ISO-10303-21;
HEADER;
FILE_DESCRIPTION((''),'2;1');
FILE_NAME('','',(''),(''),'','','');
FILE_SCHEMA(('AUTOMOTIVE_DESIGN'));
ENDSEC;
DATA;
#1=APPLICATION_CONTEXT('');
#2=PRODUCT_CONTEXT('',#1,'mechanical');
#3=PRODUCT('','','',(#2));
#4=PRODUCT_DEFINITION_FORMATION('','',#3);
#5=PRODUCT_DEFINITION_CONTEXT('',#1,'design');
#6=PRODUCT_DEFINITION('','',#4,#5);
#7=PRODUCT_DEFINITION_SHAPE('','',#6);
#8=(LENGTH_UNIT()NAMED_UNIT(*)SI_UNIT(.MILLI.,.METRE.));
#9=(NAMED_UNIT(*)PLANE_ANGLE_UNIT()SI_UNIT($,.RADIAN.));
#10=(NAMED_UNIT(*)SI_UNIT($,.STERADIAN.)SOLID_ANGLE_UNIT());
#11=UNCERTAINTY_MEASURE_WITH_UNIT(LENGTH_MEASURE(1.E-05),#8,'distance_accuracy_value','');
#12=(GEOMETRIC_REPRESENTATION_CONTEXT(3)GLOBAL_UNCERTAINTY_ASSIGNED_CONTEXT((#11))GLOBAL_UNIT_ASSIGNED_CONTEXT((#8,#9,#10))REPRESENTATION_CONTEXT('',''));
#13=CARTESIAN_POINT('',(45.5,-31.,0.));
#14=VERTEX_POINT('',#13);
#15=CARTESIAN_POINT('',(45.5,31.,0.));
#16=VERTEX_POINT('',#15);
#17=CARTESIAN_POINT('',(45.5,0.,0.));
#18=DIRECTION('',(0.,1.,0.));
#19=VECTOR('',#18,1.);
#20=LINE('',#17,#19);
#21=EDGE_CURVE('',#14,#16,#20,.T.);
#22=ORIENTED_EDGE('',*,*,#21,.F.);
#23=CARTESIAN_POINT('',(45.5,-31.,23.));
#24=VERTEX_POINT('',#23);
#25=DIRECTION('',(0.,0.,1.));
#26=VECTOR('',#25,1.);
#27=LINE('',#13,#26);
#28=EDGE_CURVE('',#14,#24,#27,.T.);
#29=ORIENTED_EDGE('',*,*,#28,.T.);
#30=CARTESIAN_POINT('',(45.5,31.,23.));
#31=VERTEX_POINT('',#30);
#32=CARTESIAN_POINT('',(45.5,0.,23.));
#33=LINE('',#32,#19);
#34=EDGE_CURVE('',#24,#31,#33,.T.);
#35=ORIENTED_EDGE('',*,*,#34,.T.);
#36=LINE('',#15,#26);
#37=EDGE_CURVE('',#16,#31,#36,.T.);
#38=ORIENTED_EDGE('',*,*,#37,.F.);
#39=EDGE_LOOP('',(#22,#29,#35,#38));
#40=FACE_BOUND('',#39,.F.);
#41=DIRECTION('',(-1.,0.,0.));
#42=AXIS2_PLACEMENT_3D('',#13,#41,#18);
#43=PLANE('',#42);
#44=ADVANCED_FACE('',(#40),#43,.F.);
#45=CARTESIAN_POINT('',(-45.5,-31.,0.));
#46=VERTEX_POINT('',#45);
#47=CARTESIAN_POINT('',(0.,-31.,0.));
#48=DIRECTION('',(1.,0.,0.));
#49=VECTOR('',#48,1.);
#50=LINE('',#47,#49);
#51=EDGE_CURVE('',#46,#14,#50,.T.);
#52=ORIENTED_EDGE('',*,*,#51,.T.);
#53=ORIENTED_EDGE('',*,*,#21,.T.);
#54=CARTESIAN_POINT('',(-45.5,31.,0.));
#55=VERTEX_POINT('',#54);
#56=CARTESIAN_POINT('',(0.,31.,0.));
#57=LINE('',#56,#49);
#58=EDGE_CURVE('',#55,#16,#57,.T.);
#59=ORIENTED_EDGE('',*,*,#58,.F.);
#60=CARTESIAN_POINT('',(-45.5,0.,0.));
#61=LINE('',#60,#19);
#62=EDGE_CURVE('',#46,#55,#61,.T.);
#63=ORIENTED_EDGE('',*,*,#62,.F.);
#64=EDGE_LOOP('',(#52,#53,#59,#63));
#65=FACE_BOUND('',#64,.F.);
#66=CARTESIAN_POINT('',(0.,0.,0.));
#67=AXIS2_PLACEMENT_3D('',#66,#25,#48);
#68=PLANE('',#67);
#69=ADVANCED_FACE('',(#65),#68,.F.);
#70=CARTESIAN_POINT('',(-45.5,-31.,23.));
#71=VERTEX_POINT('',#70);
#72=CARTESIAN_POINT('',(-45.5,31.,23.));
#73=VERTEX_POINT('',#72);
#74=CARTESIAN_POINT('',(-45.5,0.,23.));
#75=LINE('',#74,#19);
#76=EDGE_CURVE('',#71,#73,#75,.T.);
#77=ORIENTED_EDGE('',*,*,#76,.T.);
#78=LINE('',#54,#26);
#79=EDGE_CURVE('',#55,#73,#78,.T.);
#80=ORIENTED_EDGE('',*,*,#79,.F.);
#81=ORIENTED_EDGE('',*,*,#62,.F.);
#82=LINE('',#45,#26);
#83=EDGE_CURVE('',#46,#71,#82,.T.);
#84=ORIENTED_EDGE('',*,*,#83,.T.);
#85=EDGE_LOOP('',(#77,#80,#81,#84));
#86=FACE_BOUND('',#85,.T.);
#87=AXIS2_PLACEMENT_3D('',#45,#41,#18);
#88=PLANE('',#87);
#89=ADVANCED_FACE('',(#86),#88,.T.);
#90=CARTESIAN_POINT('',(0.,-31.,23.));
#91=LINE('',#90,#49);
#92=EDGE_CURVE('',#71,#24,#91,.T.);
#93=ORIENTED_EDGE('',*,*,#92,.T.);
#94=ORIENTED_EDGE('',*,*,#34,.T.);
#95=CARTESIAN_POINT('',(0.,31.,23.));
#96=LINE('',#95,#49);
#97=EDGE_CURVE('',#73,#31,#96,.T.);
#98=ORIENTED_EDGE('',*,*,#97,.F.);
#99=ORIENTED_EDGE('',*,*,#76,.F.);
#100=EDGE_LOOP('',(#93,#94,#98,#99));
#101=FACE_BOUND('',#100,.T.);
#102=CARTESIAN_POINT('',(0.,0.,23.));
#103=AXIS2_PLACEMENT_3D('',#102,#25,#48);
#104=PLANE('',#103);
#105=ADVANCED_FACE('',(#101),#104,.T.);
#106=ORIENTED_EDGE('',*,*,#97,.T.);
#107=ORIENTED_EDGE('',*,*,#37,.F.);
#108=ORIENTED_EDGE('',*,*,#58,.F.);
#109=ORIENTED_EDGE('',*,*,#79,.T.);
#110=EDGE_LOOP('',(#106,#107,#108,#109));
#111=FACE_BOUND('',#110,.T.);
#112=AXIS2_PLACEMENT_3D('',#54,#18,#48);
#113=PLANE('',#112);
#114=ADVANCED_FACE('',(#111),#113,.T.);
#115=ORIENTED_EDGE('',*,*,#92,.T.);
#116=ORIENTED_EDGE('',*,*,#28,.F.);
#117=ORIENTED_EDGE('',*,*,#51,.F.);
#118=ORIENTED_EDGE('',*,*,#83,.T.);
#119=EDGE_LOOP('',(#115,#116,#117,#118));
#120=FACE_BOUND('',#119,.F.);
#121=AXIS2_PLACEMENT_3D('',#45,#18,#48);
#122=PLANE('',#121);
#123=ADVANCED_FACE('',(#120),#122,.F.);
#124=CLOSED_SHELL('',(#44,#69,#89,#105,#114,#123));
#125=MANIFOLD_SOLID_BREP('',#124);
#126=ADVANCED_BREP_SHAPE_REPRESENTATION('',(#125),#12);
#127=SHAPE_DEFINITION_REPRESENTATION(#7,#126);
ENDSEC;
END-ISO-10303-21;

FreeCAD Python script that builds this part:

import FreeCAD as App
import Part
import Sketcher

doc = App.newDocument("Part")
body = doc.addObject("PartDesign::Body", "Body")

sketch1 = body.newObject("Sketcher::SketchObject", "Sketch")
sketch1.AttachmentSupport = (doc.getObject("XY_Plane"), [""])
sketch1.MapMode = "FlatFace"
sketch1.addGeometry([
    Part.LineSegment(App.Vector(-46, 31, 0), App.Vector(-46, -31, 0)),
    Part.LineSegment(App.Vector(-46, -31, 0), App.Vector(46, -31, 0)),
    Part.LineSegment(App.Vector(46, -31, 0), App.Vector(46, 31, 0)),
    Part.LineSegment(App.Vector(46, 31, 0), App.Vector(-46, 31, 0)),
], False)
sketch1.addConstraint([
    Sketcher.Constraint("Coincident", 0, 2, 1, 1),
    Sketcher.Constraint("Coincident", 1, 2, 2, 1),
    Sketcher.Constraint("Coincident", 2, 2, 3, 1),
    Sketcher.Constraint("Coincident", 3, 2, 0, 1),
    Sketcher.Constraint("Vertical", 0),
    Sketcher.Constraint("Horizontal", 1),
    Sketcher.Constraint("Vertical", 2),
    Sketcher.Constraint("Horizontal", 3),
    Sketcher.Constraint("Symmetric", 0, 2, 2, 2, -1, 1),
    Sketcher.Constraint("DistanceX", 1, 1, 1, 2, 91.0),
    Sketcher.Constraint("DistanceY", 0, 2, 0, 1, 62.0),
])
pad1 = body.newObject("PartDesign::Pad", "Pad")
pad1.Profile = sketch1
pad1.Length = 23

doc.recompute()
